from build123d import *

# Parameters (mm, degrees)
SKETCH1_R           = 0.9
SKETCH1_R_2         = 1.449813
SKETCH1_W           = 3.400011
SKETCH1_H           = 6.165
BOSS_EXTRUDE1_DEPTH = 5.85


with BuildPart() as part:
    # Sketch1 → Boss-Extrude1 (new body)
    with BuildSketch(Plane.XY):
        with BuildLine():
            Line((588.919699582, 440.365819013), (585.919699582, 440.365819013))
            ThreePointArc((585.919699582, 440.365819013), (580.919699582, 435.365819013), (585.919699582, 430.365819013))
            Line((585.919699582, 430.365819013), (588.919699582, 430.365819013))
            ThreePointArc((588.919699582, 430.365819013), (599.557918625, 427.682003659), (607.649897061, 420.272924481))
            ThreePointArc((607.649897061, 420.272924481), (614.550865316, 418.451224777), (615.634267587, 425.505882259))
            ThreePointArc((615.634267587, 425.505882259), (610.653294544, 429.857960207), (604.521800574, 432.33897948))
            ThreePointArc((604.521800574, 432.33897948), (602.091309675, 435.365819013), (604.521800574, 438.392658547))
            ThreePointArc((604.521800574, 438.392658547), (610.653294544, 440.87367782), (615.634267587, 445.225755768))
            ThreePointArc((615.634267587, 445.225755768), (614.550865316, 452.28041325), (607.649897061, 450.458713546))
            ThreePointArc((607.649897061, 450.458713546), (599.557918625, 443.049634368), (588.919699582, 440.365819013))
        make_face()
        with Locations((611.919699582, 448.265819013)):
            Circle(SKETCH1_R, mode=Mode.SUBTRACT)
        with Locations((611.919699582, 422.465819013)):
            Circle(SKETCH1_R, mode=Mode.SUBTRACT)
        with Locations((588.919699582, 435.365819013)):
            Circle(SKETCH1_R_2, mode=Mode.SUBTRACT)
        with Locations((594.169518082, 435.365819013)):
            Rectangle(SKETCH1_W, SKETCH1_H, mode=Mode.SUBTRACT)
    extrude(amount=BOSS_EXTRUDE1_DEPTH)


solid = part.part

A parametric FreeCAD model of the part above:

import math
import FreeCAD as App
import Part
import Sketcher
Q = App.Units.Quantity

doc = App.newDocument("Part")
params = doc.addObject("Spreadsheet::Sheet", "Params")
for row, (alias, value) in enumerate([
    ("sketch1_radius", "5 mm"),
    ("sketch1_diameter", "1.8 mm"),
    ("sketch1_radius2", "4.8 mm"),
    ("sketch1_radius3", "3.1 mm"),
    ("sketch1_width", "3 mm"),
    ("pad1_length", "5.85 mm"),
], start=1):
    params.set(f"A{row}", alias)
    params.set(f"B{row}", "=" + value)
    params.setAlias(f"B{row}", alias)

body = doc.addObject("PartDesign::Body", "Body")

# Sketch on XY plane
sketch1 = body.newObject("Sketcher::SketchObject", "Sketch")
sketch1.AttachmentSupport = (doc.getObject("XY_Plane"), [""])
sketch1.MapMode = "FlatFace"
sketch1.addGeometry([
    Part.LineSegment(App.Vector(588.9, 440.4, 0), App.Vector(585.9, 440.4, 0)),  # 0
    Part.ArcOfCircle(Part.Circle(App.Vector(585.9, 435.4, 0), App.Vector(0, 0, 1), 5), math.radians(90), math.radians(270)),  # 1
    Part.LineSegment(App.Vector(585.9, 430.4, 0), App.Vector(588.9, 430.4, 0)),  # 2
    Part.ArcOfCircle(Part.Circle(App.Vector(588.9, 407.9, 0), App.Vector(0, 0, 1), 22.4), math.radians(33), math.radians(90)),  # 3
    Part.ArcOfCircle(Part.Circle(App.Vector(611.9, 422.5, 0), App.Vector(0, 0, 1), 4.8), math.radians(-153), math.radians(39)),  # 4
    Part.ArcOfCircle(Part.Circle(App.Vector(600.2, 412.9, 0), App.Vector(0, 0, 1), 19.9), math.radians(39), math.radians(78)),  # 5
    Part.ArcOfCircle(Part.Circle(App.Vector(605.2, 435.4, 0), App.Vector(0, 0, 1), 3.1), math.radians(102), math.radians(258)),  # 6
    Part.ArcOfCircle(Part.Circle(App.Vector(600.2, 457.8, 0), App.Vector(0, 0, 1), 19.9), math.radians(-78), math.radians(-39)),  # 7
    Part.ArcOfCircle(Part.Circle(App.Vector(611.9, 448.3, 0), App.Vector(0, 0, 1), 4.8), math.radians(-39), math.radians(153)),  # 8
    Part.ArcOfCircle(Part.Circle(App.Vector(588.9, 462.8, 0), App.Vector(0, 0, 1), 22.4), math.radians(-90), math.radians(-33)),  # 9
    Part.Circle(App.Vector(611.9, 422.5, 0), App.Vector(0, 0, 1), 0.9),  # 10
    Part.Circle(App.Vector(588.9, 435.4, 0), App.Vector(0, 0, 1), 1.4),  # 11
    Part.LineSegment(App.Vector(595.9, 432.3, 0), App.Vector(592.5, 432.3, 0)),  # 12
    Part.LineSegment(App.Vector(592.5, 432.3, 0), App.Vector(592.5, 438.4, 0)),  # 13
    Part.LineSegment(App.Vector(592.5, 438.4, 0), App.Vector(595.9, 438.4, 0)),  # 14
    Part.LineSegment(App.Vector(595.9, 438.4, 0), App.Vector(595.9, 432.3, 0)),  # 15
    Part.Circle(App.Vector(611.9, 448.3, 0), App.Vector(0, 0, 1), 0.9),  # 16
], False)
sketch1.addConstraint([
    Sketcher.Constraint("Tangent", 0, 2, 1, 1),
    Sketcher.Constraint("Tangent", 1, 2, 2, 1),
    Sketcher.Constraint("Tangent", 2, 2, 3, 2),
    Sketcher.Constraint("Coincident", 3, 1, 4, 1),
    Sketcher.Constraint("Tangent", 4, 2, 5, 1),
    Sketcher.Constraint("Tangent", 5, 2, 6, 2),
    Sketcher.Constraint("Tangent", 6, 1, 7, 1),
    Sketcher.Constraint("Tangent", 7, 2, 8, 1),
    Sketcher.Constraint("Coincident", 8, 2, 9, 2),
    Sketcher.Constraint("Tangent", 9, 1, 0, 1),
    Sketcher.Constraint("Coincident", 12, 2, 13, 1),
    Sketcher.Constraint("Coincident", 13, 2, 14, 1),
    Sketcher.Constraint("Coincident", 14, 2, 15, 1),
    Sketcher.Constraint("Coincident", 15, 2, 12, 1),
    Sketcher.Constraint("Horizontal", 0),
    Sketcher.Constraint("Horizontal", 2),
    Sketcher.Constraint("Horizontal", 12),
    Sketcher.Constraint("Vertical", 13),
    Sketcher.Constraint("Horizontal", 14),
    Sketcher.Constraint("Vertical", 15),
    Sketcher.Constraint("Coincident", 10, 3, 4, 3),
    Sketcher.Constraint("Coincident", 16, 3, 8, 3),
    Sketcher.Constraint("Equal", 5, 7),
    Sketcher.Constraint("Equal", 4, 8),
    Sketcher.Constraint("Equal", 3, 9),
    Sketcher.Constraint("Equal", 10, 16),
    Sketcher.Constraint("Horizontal", 1, 3, 6, 3),
    Sketcher.Constraint("Horizontal", 6, 3, 11, 3),
    Sketcher.Constraint("Vertical", 5, 3, 7, 3),
    Sketcher.Constraint("Vertical", 4, 3, 8, 3),
    Sketcher.Constraint("Vertical", 3, 3, 9, 3),
    Sketcher.Constraint("Vertical", 9, 3, 11, 3),
    Sketcher.Constraint("Radius", 1, Q("5 mm")),
    Sketcher.Constraint("Diameter", 10, Q("1.8 mm")),
    Sketcher.Constraint("Radius", 4, Q("4.8 mm")),
    Sketcher.Constraint("Radius", 6, Q("3.1 mm")),
    Sketcher.Constraint("DistanceX", 0, 2, 0, 1, Q("3 mm")),
    Sketcher.Constraint("DistanceX", 3, 3, 4, 3, Q("23 mm")),
    Sketcher.Constraint("DistanceY", 4, 3, 1, 3, Q("12.9 mm")),
    Sketcher.Constraint("DistanceY", 13, 1, 13, 2, Q("6.165 mm")),
    Sketcher.Constraint("Radius", 5, Q("19.918469 mm")),
    Sketcher.Constraint("Diameter", 11, Q("2.899626 mm")),
    Sketcher.Constraint("Radius", 3, Q("22.426015 mm")),
    Sketcher.Constraint("DistanceX", 12, 2, 12, 1, Q("3.400011 mm")),
    Sketcher.Constraint("DistanceX", -1, 1, 1, 3, Q("585.9197 mm")),
    Sketcher.Constraint("DistanceX", -1, 1, 5, 2, Q("604.521801 mm")),
    Sketcher.Constraint("DistanceY", 2, 2, 12, 2, Q("1.9175 mm")),
    Sketcher.Constraint("DistanceY", -1, 1, 1, 3, Q("435.365819 mm")),
    Sketcher.Constraint("DistanceX", -1, 1, 12, 2, Q("592.469513 mm")),
])
sketch1.setExpression("Constraints[32]", "Params.sketch1_radius")
sketch1.setExpression("Constraints[33]", "Params.sketch1_diameter")
sketch1.setExpression("Constraints[34]", "Params.sketch1_radius2")
sketch1.setExpression("Constraints[35]", "Params.sketch1_radius3")
sketch1.setExpression("Constraints[36]", "Params.sketch1_width")
pad1 = body.newObject("PartDesign::Pad", "Pad")
pad1.Profile = sketch1
pad1.setExpression("Length", "Params.pad1_length")

doc.recompute()
